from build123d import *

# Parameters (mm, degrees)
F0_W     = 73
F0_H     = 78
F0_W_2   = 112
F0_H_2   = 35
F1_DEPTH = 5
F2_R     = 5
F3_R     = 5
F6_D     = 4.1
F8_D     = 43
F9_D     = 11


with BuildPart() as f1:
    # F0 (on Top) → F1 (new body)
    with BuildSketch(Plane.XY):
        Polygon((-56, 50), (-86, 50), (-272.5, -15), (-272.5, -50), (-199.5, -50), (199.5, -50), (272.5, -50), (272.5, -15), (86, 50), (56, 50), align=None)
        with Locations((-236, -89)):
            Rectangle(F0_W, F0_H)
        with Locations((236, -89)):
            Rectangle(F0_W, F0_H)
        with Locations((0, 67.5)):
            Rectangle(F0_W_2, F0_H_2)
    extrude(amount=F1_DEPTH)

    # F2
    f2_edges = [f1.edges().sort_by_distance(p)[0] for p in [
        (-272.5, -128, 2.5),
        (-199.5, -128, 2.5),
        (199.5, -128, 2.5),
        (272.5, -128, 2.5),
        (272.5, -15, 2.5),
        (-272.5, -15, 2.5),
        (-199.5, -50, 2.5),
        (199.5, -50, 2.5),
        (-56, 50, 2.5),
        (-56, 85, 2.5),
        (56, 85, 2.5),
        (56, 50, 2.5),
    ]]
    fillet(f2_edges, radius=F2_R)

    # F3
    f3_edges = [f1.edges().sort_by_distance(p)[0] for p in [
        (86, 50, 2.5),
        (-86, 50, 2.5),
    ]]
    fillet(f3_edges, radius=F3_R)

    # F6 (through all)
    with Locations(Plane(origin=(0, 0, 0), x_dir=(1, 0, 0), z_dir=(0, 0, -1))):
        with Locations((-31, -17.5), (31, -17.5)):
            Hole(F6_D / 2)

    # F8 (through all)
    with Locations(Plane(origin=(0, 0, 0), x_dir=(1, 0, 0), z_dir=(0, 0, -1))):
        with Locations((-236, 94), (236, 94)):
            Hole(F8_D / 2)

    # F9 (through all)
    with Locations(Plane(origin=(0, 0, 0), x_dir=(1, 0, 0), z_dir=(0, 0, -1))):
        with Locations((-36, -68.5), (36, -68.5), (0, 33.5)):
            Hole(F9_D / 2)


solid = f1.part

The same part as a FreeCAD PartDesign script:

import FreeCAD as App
import Part
import Sketcher
from FreeCAD import Vector
Q = App.Units.Quantity


def edges_at(feature, points):
    """Names of the edges that pass closest to the given points."""
    edges = feature.Shape.Edges
    near = lambda p: min(range(len(edges)), key=lambda i: edges[i].distToShape(Part.Vertex(*p))[0])
    return sorted({f"Edge{near(p) + 1}" for p in points})

doc = App.newDocument("Part")
body = doc.addObject("PartDesign::Body", "Body")

sketch1 = body.newObject("Sketcher::SketchObject", "Sketch")
sketch1.AttachmentSupport = (doc.getObject("XY_Plane"), [""])
sketch1.MapMode = "FlatFace"
sketch1.addGeometry([
    Part.LineSegment(Vector(-86, 50, 0), Vector(-272, -15, 0)),
    Part.LineSegment(Vector(-272, -15, 0), Vector(-272, -128, 0)),
    Part.LineSegment(Vector(-272, -128, 0), Vector(-200, -128, 0)),
    Part.LineSegment(Vector(-200, -128, 0), Vector(-200, -50, 0)),
    Part.LineSegment(Vector(-200, -50, 0), Vector(200, -50, 0)),
    Part.LineSegment(Vector(200, -50, 0), Vector(200, -128, 0)),
    Part.LineSegment(Vector(200, -128, 0), Vector(272, -128, 0)),
    Part.LineSegment(Vector(272, -128, 0), Vector(272, -15, 0)),
    Part.LineSegment(Vector(272, -15, 0), Vector(86, 50, 0)),
    Part.LineSegment(Vector(86, 50, 0), Vector(56, 50, 0)),
    Part.LineSegment(Vector(56, 50, 0), Vector(56, 85, 0)),
    Part.LineSegment(Vector(56, 85, 0), Vector(-56, 85, 0)),
    Part.LineSegment(Vector(-56, 85, 0), Vector(-56, 50, 0)),
    Part.LineSegment(Vector(-56, 50, 0), Vector(-86, 50, 0)),
], False)
sketch1.addConstraint([
    Sketcher.Constraint("Coincident", 0, 2, 1, 1),
    Sketcher.Constraint("Coincident", 1, 2, 2, 1),
    Sketcher.Constraint("Coincident", 2, 2, 3, 1),
    Sketcher.Constraint("Coincident", 3, 2, 4, 1),
    Sketcher.Constraint("Coincident", 4, 2, 5, 1),
    Sketcher.Constraint("Coincident", 5, 2, 6, 1),
    Sketcher.Constraint("Coincident", 6, 2, 7, 1),
    Sketcher.Constraint("Coincident", 7, 2, 8, 1),
    Sketcher.Constraint("Coincident", 8, 2, 9, 1),
    Sketcher.Constraint("Coincident", 9, 2, 10, 1),
    Sketcher.Constraint("Coincident", 10, 2, 11, 1),
    Sketcher.Constraint("Coincident", 11, 2, 12, 1),
    Sketcher.Constraint("Coincident", 12, 2, 13, 1),
    Sketcher.Constraint("Coincident", 13, 2, 0, 1),
    Sketcher.Constraint("Vertical", 1),
    Sketcher.Constraint("Horizontal", 2),
    Sketcher.Constraint("Vertical", 3),
    Sketcher.Constraint("Horizontal", 4),
    Sketcher.Constraint("Vertical", 5),
    Sketcher.Constraint("Horizontal", 6),
    Sketcher.Constraint("Vertical", 7),
    Sketcher.Constraint("Horizontal", 9),
    Sketcher.Constraint("Vertical", 10),
    Sketcher.Constraint("Horizontal", 11),
    Sketcher.Constraint("Vertical", 12),
    Sketcher.Constraint("Horizontal", 13),
    Sketcher.Constraint("Symmetric", 2, 2, 5, 2, -2),
    Sketcher.Constraint("Symmetric", 0, 2, 7, 2, -2),
    Sketcher.Constraint("Symmetric", 9, 2, 12, 2, -2),
    Sketcher.Constraint("Equal", 9, 13),
    Sketcher.Constraint("DistanceX", 2, 1, 2, 2, Q("73 mm")),
    Sketcher.Constraint("DistanceX", 4, 1, 4, 2, Q("399 mm")),
    Sketcher.Constraint("DistanceX", 9, 2, 9, 1, Q("30 mm")),
    Sketcher.Constraint("DistanceX", 11, 2, 11, 1, Q("112 mm")),
    Sketcher.Constraint("DistanceY", 1, 2, 1, 1, Q("113 mm")),
    Sketcher.Constraint("DistanceY", 3, 1, 3, 2, Q("78 mm")),
    Sketcher.Constraint("DistanceY", 10, 1, 10, 2, Q("35 mm")),
    Sketcher.Constraint("DistanceY", 0, 2, -1, 1, Q("15 mm")),
    Sketcher.Constraint("DistanceY", -1, 1, 8, 2, Q("50 mm")),
])
pad1 = body.newObject("PartDesign::Pad", "Pad")
pad1.Profile = sketch1
pad1.Length = 5
doc.recompute()

fillet = body.newObject("PartDesign::Fillet", "Fillet")
fillet.Base = (pad1, edges_at(pad1, [
    (-272.5, -128, 2.5),
    (-199.5, -128, 2.5),
    (199.5, -128, 2.5),
    (272.5, -128, 2.5),
    (272.5, -15, 2.5),
    (-272.5, -15, 2.5),
    (-199.5, -50, 2.5),
    (199.5, -50, 2.5),
    (-56, 50, 2.5),
    (-56, 85, 2.5),
    (56, 85, 2.5),
    (56, 50, 2.5),
]))
fillet.Radius = 5
doc.recompute()

fillet2 = body.newObject("PartDesign::Fillet", "Fillet001")
fillet2.Base = (fillet, edges_at(fillet, [(86, 50, 2.5), (-86, 50, 2.5)]))
fillet2.Radius = 5

sketch2 = body.newObject("Sketcher::SketchObject", "Sketch001")
sketch2.AttachmentSupport = (doc.getObject("XY_Plane"), [""])
sketch2.MapMode = "FlatFace"
sketch2.addGeometry([
    Part.Circle(Vector(-31, 17.5, 0), Vector(0, 0, 1), 2),
    Part.Circle(Vector(31, 17.5, 0), Vector(0, 0, 1), 2),
], False)
sketch2.addConstraint([
    Sketcher.Constraint("Equal", 0, 1),
    Sketcher.Constraint("Symmetric", 0, 3, 1, 3, -2),
    Sketcher.Constraint("Diameter", 0, Q("4.1 mm")),
    Sketcher.Constraint("DistanceX", 0, 3, -1, 1, Q("31 mm")),
    Sketcher.Constraint("DistanceY", -1, 1, 0, 3, Q("17.5 mm")),
])
doc.recompute()
hole = body.newObject("PartDesign::Hole", "Hole")
hole.Profile = sketch2
hole.ThreadType = "None"
hole.Diameter = 4.1
hole.DepthType = "ThroughAll"
hole.Reversed = True

sketch3 = body.newObject("Sketcher::SketchObject", "Sketch002")
sketch3.AttachmentSupport = (doc.getObject("XY_Plane"), [""])
sketch3.MapMode = "FlatFace"
sketch3.addGeometry([
    Part.Circle(Vector(-236, -94, 0), Vector(0, 0, 1), 22),
    Part.Circle(Vector(236, -94, 0), Vector(0, 0, 1), 22),
], False)
sketch3.addConstraint([
    Sketcher.Constraint("Equal", 0, 1),
    Sketcher.Constraint("Symmetric", 0, 3, 1, 3, -2),
    Sketcher.Constraint("Diameter", 0, Q("43 mm")),
    Sketcher.Constraint("DistanceX", 0, 3, -1, 1, Q("236 mm")),
    Sketcher.Constraint("DistanceY", 0, 3, -1, 1, Q("94 mm")),
])
doc.recompute()
hole2 = body.newObject("PartDesign::Hole", "Hole001")
hole2.Profile = sketch3
hole2.ThreadType = "None"
hole2.Diameter = 43
hole2.DepthType = "ThroughAll"
hole2.Reversed = True

sketch4 = body.newObject("Sketcher::SketchObject", "Sketch003")
sketch4.AttachmentSupport = (doc.getObject("XY_Plane"), [""])
sketch4.MapMode = "FlatFace"
sketch4.addGeometry([
    Part.Circle(Vector(-36, 68, 0), Vector(0, 0, 1), 6),
    Part.Circle(Vector(36, 68, 0), Vector(0, 0, 1), 6),
    Part.Circle(Vector(0, -34, 0), Vector(0, 0, 1), 6),
], False)
sketch4.addConstraint([
    Sketcher.Constraint("Equal", 0, 1),
    Sketcher.Constraint("Equal", 1, 2),
    Sketcher.Constraint("Symmetric", 0, 3, 1, 3, -2),
    Sketcher.Constraint("PointOnObject", 2, 3, -2),
    Sketcher.Constraint("Diameter", 0, Q("11 mm")),
    Sketcher.Constraint("DistanceX", 0, 3, -1, 1, Q("36 mm")),
    Sketcher.Constraint("DistanceY", 2, 3, 0, 3, Q("102 mm")),
    Sketcher.Constraint("DistanceY", -1, 1, 0, 3, Q("68.5 mm")),
])
doc.recompute()
hole3 = body.newObject("PartDesign::Hole", "Hole002")
hole3.Profile = sketch4
hole3.ThreadType = "None"
hole3.Diameter = 11
hole3.DepthType = "ThroughAll"
hole3.Reversed = True

doc.recompute()
